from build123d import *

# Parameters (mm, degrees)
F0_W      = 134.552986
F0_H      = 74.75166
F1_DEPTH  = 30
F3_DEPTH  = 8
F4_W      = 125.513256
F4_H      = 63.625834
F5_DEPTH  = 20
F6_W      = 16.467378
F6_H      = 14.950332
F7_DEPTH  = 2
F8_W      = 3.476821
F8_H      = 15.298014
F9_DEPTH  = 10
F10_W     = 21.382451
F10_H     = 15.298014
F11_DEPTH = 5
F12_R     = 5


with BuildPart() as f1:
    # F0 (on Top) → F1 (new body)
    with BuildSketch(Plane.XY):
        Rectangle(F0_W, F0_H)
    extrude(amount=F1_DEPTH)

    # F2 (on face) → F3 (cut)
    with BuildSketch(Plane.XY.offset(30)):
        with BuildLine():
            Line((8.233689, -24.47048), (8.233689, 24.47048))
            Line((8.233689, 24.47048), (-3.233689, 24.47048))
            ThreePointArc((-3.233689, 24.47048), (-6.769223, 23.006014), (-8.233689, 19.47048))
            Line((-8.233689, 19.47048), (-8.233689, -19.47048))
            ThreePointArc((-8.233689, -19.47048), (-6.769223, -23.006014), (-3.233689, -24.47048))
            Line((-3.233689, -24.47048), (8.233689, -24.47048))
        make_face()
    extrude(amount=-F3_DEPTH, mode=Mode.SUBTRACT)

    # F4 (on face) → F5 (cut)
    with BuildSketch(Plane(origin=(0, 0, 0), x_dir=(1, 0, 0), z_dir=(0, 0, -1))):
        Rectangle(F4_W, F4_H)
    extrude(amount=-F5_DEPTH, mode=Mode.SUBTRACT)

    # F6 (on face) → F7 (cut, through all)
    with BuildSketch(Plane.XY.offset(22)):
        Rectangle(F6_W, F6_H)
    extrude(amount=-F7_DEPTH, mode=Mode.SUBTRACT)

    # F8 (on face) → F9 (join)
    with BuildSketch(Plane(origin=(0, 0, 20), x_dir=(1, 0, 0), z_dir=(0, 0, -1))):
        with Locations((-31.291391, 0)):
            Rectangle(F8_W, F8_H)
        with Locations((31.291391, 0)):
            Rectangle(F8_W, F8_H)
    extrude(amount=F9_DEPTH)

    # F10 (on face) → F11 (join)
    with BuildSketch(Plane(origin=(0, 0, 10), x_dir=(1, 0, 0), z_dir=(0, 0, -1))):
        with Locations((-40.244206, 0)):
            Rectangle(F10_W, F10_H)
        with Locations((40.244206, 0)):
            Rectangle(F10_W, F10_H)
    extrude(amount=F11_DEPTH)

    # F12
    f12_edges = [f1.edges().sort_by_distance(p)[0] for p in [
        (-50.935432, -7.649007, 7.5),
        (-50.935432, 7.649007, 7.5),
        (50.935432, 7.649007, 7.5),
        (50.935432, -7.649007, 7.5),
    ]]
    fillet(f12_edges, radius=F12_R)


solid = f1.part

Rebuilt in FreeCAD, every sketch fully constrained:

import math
import FreeCAD as App
import Part
import Sketcher


def edges_at(feature, points):
    """Names of the edges that pass closest to the given points."""
    edges = feature.Shape.Edges
    near = lambda p: min(range(len(edges)), key=lambda i: edges[i].distToShape(Part.Vertex(*p))[0])
    return sorted({f"Edge{near(p) + 1}" for p in points})

doc = App.newDocument("Part")
body = doc.addObject("PartDesign::Body", "Body")

# Sketch on XY plane
sketch1 = body.newObject("Sketcher::SketchObject", "Sketch")
sketch1.AttachmentSupport = (doc.getObject("XY_Plane"), [""])
sketch1.MapMode = "FlatFace"
sketch1.addGeometry([
    Part.LineSegment(App.Vector(-67.276493, 37.37583, 0), App.Vector(-67.276493, -37.37583, 0)),
    Part.LineSegment(App.Vector(-67.276493, -37.37583, 0), App.Vector(67.276493, -37.37583, 0)),
    Part.LineSegment(App.Vector(67.276493, -37.37583, 0), App.Vector(67.276493, 37.37583, 0)),
    Part.LineSegment(App.Vector(67.276493, 37.37583, 0), App.Vector(-67.276493, 37.37583, 0)),
], False)
sketch1.addConstraint([
    Sketcher.Constraint("Coincident", 0, 2, 1, 1),
    Sketcher.Constraint("Coincident", 1, 2, 2, 1),
    Sketcher.Constraint("Coincident", 2, 2, 3, 1),
    Sketcher.Constraint("Coincident", 3, 2, 0, 1),
    Sketcher.Constraint("Vertical", 0),
    Sketcher.Constraint("Horizontal", 1),
    Sketcher.Constraint("Vertical", 2),
    Sketcher.Constraint("Horizontal", 3),
    Sketcher.Constraint("Symmetric", 0, 2, 2, 2, -1, 1),
    Sketcher.Constraint("DistanceY", 0, 2, 0, 1, 74.75166),
    Sketcher.Constraint("DistanceX", 1, 1, 1, 2, 134.552986),
])
pad1 = body.newObject("PartDesign::Pad", "Pad")
pad1.Profile = sketch1
pad1.Length = 30

# Sketch on XY plane
sketch2 = body.newObject("Sketcher::SketchObject", "Sketch001")
sketch2.AttachmentSupport = (doc.getObject("XY_Plane"), [""])
sketch2.MapMode = "FlatFace"
sketch2.AttachmentOffset = App.Placement(App.Vector(0, 0, 30), App.Rotation())
sketch2.addGeometry([
    Part.LineSegment(App.Vector(8.233689, -24.47048, 0), App.Vector(8.233689, 24.47048, 0)),  # 0
    Part.LineSegment(App.Vector(8.233689, 24.47048, 0), App.Vector(-3.233689, 24.47048, 0)),  # 1
    Part.ArcOfCircle(Part.Circle(App.Vector(-3.233689, 19.47048, 0), App.Vector(0, 0, 1), 5), math.radians(89.999996), math.radians(180.000004)),  # 2
    Part.LineSegment(App.Vector(-8.233689, 19.47048, 0), App.Vector(-8.233689, -19.47048, 0)),  # 3
    Part.ArcOfCircle(Part.Circle(App.Vector(-3.233689, -19.47048, 0), App.Vector(0, 0, 1), 5), math.radians(179.999996), math.radians(270.000004)),  # 4
    Part.LineSegment(App.Vector(-3.233689, -24.47048, 0), App.Vector(8.233689, -24.47048, 0)),  # 5
], False)
sketch2.addConstraint([
    Sketcher.Constraint("Coincident", 0, 2, 1, 1),
    Sketcher.Constraint("Tangent", 1, 2, 2, 1),
    Sketcher.Constraint("Tangent", 2, 2, 3, 1),
    Sketcher.Constraint("Tangent", 3, 2, 4, 1),
    Sketcher.Constraint("Tangent", 4, 2, 5, 1),
    Sketcher.Constraint("Coincident", 5, 2, 0, 1),
    Sketcher.Constraint("Vertical", 0),
    Sketcher.Constraint("Horizontal", 1),
    Sketcher.Constraint("Vertical", 3),
    Sketcher.Constraint("Horizontal", 5),
    Sketcher.Constraint("Equal", 2, 4),
    Sketcher.Constraint("Radius", 2, 5.0),
    Sketcher.Constraint("DistanceY", 0, 1, 0, 2, 48.94096),
    Sketcher.Constraint("DistanceX", 1, 2, 1, 1, 11.467378),
    Sketcher.Constraint("DistanceX", 2, 3, -1, 1, 3.233689),
    Sketcher.Constraint("DistanceY", -1, 1, 2, 3, 19.47048),
])
pocket1 = body.newObject("PartDesign::Pocket", "Pocket")
pocket1.Profile = sketch2
pocket1.Length = 8

# Sketch on XY plane
sketch3 = body.newObject("Sketcher::SketchObject", "Sketch002")
sketch3.AttachmentSupport = (doc.getObject("XY_Plane"), [""])
sketch3.MapMode = "FlatFace"
sketch3.addGeometry([
    Part.LineSegment(App.Vector(-62.756628, -31.812917, 0), App.Vector(-62.756628, 31.812917, 0)),
    Part.LineSegment(App.Vector(-62.756628, 31.812917, 0), App.Vector(62.756628, 31.812917, 0)),
    Part.LineSegment(App.Vector(62.756628, 31.812917, 0), App.Vector(62.756628, -31.812917, 0)),
    Part.LineSegment(App.Vector(62.756628, -31.812917, 0), App.Vector(-62.756628, -31.812917, 0)),
], False)
sketch3.addConstraint([
    Sketcher.Constraint("Coincident", 0, 2, 1, 1),
    Sketcher.Constraint("Coincident", 1, 2, 2, 1),
    Sketcher.Constraint("Coincident", 2, 2, 3, 1),
    Sketcher.Constraint("Coincident", 3, 2, 0, 1),
    Sketcher.Constraint("Vertical", 0),
    Sketcher.Constraint("Horizontal", 1),
    Sketcher.Constraint("Vertical", 2),
    Sketcher.Constraint("Horizontal", 3),
    Sketcher.Constraint("Symmetric", 0, 2, 2, 2, -1, 1),
    Sketcher.Constraint("DistanceX", 1, 1, 1, 2, 125.513256),
    Sketcher.Constraint("DistanceY", 0, 1, 0, 2, 63.625834),
])
pocket2 = body.newObject("PartDesign::Pocket", "Pocket001")
pocket2.Profile = sketch3
pocket2.Length = 20
pocket2.Reversed = True

# Sketch on XY plane
sketch4 = body.newObject("Sketcher::SketchObject", "Sketch003")
sketch4.AttachmentSupport = (doc.getObject("XY_Plane"), [""])
sketch4.MapMode = "FlatFace"
sketch4.AttachmentOffset = App.Placement(App.Vector(0, 0, 22), App.Rotation())
sketch4.addGeometry([
    Part.LineSegment(App.Vector(-8.233689, 7.475166, 0), App.Vector(-8.233689, -7.475166, 0)),
    Part.LineSegment(App.Vector(-8.233689, -7.475166, 0), App.Vector(8.233689, -7.475166, 0)),
    Part.LineSegment(App.Vector(8.233689, -7.475166, 0), App.Vector(8.233689, 7.475166, 0)),
    Part.LineSegment(App.Vector(8.233689, 7.475166, 0), App.Vector(-8.233689, 7.475166, 0)),
], False)
sketch4.addConstraint([
    Sketcher.Constraint("Coincident", 0, 2, 1, 1),
    Sketcher.Constraint("Coincident", 1, 2, 2, 1),
    Sketcher.Constraint("Coincident", 2, 2, 3, 1),
    Sketcher.Constraint("Coincident", 3, 2, 0, 1),
    Sketcher.Constraint("Vertical", 0),
    Sketcher.Constraint("Horizontal", 1),
    Sketcher.Constraint("Vertical", 2),
    Sketcher.Constraint("Horizontal", 3),
    Sketcher.Constraint("Symmetric", 0, 2, 2, 2, -1, 1),
    Sketcher.Constraint("DistanceX", 1, 1, 1, 2, 16.467378),
    Sketcher.Constraint("DistanceY", 0, 2, 0, 1, 14.950332),
])
pocket3 = body.newObject("PartDesign::Pocket", "Pocket002")
pocket3.Profile = sketch4
pocket3.Type = "ThroughAll"

# Sketch on XY plane
sketch5 = body.newObject("Sketcher::SketchObject", "Sketch004")
sketch5.AttachmentSupport = (doc.getObject("XY_Plane"), [""])
sketch5.MapMode = "FlatFace"
sketch5.AttachmentOffset = App.Placement(App.Vector(0, 0, 20), App.Rotation())
sketch5.addGeometry([
    Part.LineSegment(App.Vector(-33.029801, -7.649007, 0), App.Vector(-33.029801, 7.649007, 0)),  # 0
    Part.LineSegment(App.Vector(-33.029801, 7.649007, 0), App.Vector(-29.552981, 7.649007, 0)),  # 1
    Part.LineSegment(App.Vector(-29.552981, 7.649007, 0), App.Vector(-29.552981, -7.649007, 0)),  # 2
    Part.LineSegment(App.Vector(-29.552981, -7.649007, 0), App.Vector(-33.029801, -7.649007, 0)),  # 3
    Part.LineSegment(App.Vector(29.552981, -7.649007, 0), App.Vector(29.552981, 7.649007, 0)),  # 4
    Part.LineSegment(App.Vector(29.552981, 7.649007, 0), App.Vector(33.029801, 7.649007, 0)),  # 5
    Part.LineSegment(App.Vector(33.029801, 7.649007, 0), App.Vector(33.029801, -7.649007, 0)),  # 6
    Part.LineSegment(App.Vector(33.029801, -7.649007, 0), App.Vector(29.552981, -7.649007, 0)),  # 7
], False)
sketch5.addConstraint([
    Sketcher.Constraint("Coincident", 0, 2, 1, 1),
    Sketcher.Constraint("Coincident", 1, 2, 2, 1),
    Sketcher.Constraint("Coincident", 2, 2, 3, 1),
    Sketcher.Constraint("Coincident", 3, 2, 0, 1),
    Sketcher.Constraint("Coincident", 4, 2, 5, 1),
    Sketcher.Constraint("Coincident", 5, 2, 6, 1),
    Sketcher.Constraint("Coincident", 6, 2, 7, 1),
    Sketcher.Constraint("Coincident", 7, 2, 4, 1),
    Sketcher.Constraint("Vertical", 0),
    Sketcher.Constraint("Horizontal", 1),
    Sketcher.Constraint("Vertical", 2),
    Sketcher.Constraint("Horizontal", 3),
    Sketcher.Constraint("Vertical", 4),
    Sketcher.Constraint("Horizontal", 5),
    Sketcher.Constraint("Vertical", 6),
    Sketcher.Constraint("Horizontal", 7),
    Sketcher.Constraint("Symmetric", 2, 2, 4, 2, -1, 1),
    Sketcher.Constraint("Symmetric", 0, 2, 6, 2, -1, 1),
    Sketcher.Constraint("Horizontal", 1, 2, 4, 2),
    Sketcher.Constraint("DistanceX", 1, 1, 1, 2, 3.476821),
    Sketcher.Constraint("DistanceX", 0, 2, -1, 1, 33.029801),
    Sketcher.Constraint("DistanceY", 0, 1, 0, 2, 15.298014),
])
pad2 = body.newObject("PartDesign::Pad", "Pad001")
pad2.Profile = sketch5
pad2.Length = 10
pad2.Reversed = True

# Sketch on XY plane
sketch6 = body.newObject("Sketcher::SketchObject", "Sketch005")
sketch6.AttachmentSupport = (doc.getObject("XY_Plane"), [""])
sketch6.MapMode = "FlatFace"
sketch6.AttachmentOffset = App.Placement(App.Vector(0, 0, 10), App.Rotation())
sketch6.addGeometry([
    Part.LineSegment(App.Vector(-50.935431, -7.649007, 0), App.Vector(-50.935431, 7.649007, 0)),  # 0
    Part.LineSegment(App.Vector(-50.935431, 7.649007, 0), App.Vector(-29.552981, 7.649007, 0)),  # 1
    Part.LineSegment(App.Vector(-29.552981, 7.649007, 0), App.Vector(-29.552981, -7.649007, 0)),  # 2
    Part.LineSegment(App.Vector(-29.552981, -7.649007, 0), App.Vector(-50.935431, -7.649007, 0)),  # 3
    Part.LineSegment(App.Vector(29.552981, -7.649007, 0), App.Vector(29.552981, 7.649007, 0)),  # 4
    Part.LineSegment(App.Vector(29.552981, 7.649007, 0), App.Vector(50.935431, 7.649007, 0)),  # 5
    Part.LineSegment(App.Vector(50.935431, 7.649007, 0), App.Vector(50.935431, -7.649007, 0)),  # 6
    Part.LineSegment(App.Vector(50.935431, -7.649007, 0), App.Vector(29.552981, -7.649007, 0)),  # 7
], False)
sketch6.addConstraint([
    Sketcher.Constraint("Coincident", 0, 2, 1, 1),
    Sketcher.Constraint("Coincident", 1, 2, 2, 1),
    Sketcher.Constraint("Coincident", 2, 2, 3, 1),
    Sketcher.Constraint("Coincident", 3, 2, 0, 1),
    Sketcher.Constraint("Coincident", 4, 2, 5, 1),
    Sketcher.Constraint("Coincident", 5, 2, 6, 1),
    Sketcher.Constraint("Coincident", 6, 2, 7, 1),
    Sketcher.Constraint("Coincident", 7, 2, 4, 1),
    Sketcher.Constraint("Vertical", 0),
    Sketcher.Constraint("Horizontal", 1),
    Sketcher.Constraint("Vertical", 2),
    Sketcher.Constraint("Horizontal", 3),
    Sketcher.Constraint("Vertical", 4),
    Sketcher.Constraint("Horizontal", 5),
    Sketcher.Constraint("Vertical", 6),
    Sketcher.Constraint("Horizontal", 7),
    Sketcher.Constraint("Symmetric", 2, 2, 4, 2, -1, 1),
    Sketcher.Constraint("Symmetric", 0, 2, 6, 2, -1, 1),
    Sketcher.Constraint("Horizontal", 1, 2, 4, 2),
    Sketcher.Constraint("DistanceX", 1, 1, 1, 2, 21.382451),
    Sketcher.Constraint("DistanceY", 0, 1, 0, 2, 15.298014),
    Sketcher.Constraint("DistanceX", 0, 2, -1, 1, 50.935431),
])
pad3 = body.newObject("PartDesign::Pad", "Pad002")
pad3.Profile = sketch6
pad3.Length = 5
pad3.Reversed = True
doc.recompute()

fillet = body.newObject("PartDesign::Fillet", "Fillet")
fillet.Base = (pad3, edges_at(pad3, [
    (-50.935, -7.649, 7.5),
    (-50.935, 7.649, 7.5),
    (50.935, 7.649, 7.5),
    (50.935, -7.649, 7.5),
]))
fillet.Radius = 5

doc.recompute()
